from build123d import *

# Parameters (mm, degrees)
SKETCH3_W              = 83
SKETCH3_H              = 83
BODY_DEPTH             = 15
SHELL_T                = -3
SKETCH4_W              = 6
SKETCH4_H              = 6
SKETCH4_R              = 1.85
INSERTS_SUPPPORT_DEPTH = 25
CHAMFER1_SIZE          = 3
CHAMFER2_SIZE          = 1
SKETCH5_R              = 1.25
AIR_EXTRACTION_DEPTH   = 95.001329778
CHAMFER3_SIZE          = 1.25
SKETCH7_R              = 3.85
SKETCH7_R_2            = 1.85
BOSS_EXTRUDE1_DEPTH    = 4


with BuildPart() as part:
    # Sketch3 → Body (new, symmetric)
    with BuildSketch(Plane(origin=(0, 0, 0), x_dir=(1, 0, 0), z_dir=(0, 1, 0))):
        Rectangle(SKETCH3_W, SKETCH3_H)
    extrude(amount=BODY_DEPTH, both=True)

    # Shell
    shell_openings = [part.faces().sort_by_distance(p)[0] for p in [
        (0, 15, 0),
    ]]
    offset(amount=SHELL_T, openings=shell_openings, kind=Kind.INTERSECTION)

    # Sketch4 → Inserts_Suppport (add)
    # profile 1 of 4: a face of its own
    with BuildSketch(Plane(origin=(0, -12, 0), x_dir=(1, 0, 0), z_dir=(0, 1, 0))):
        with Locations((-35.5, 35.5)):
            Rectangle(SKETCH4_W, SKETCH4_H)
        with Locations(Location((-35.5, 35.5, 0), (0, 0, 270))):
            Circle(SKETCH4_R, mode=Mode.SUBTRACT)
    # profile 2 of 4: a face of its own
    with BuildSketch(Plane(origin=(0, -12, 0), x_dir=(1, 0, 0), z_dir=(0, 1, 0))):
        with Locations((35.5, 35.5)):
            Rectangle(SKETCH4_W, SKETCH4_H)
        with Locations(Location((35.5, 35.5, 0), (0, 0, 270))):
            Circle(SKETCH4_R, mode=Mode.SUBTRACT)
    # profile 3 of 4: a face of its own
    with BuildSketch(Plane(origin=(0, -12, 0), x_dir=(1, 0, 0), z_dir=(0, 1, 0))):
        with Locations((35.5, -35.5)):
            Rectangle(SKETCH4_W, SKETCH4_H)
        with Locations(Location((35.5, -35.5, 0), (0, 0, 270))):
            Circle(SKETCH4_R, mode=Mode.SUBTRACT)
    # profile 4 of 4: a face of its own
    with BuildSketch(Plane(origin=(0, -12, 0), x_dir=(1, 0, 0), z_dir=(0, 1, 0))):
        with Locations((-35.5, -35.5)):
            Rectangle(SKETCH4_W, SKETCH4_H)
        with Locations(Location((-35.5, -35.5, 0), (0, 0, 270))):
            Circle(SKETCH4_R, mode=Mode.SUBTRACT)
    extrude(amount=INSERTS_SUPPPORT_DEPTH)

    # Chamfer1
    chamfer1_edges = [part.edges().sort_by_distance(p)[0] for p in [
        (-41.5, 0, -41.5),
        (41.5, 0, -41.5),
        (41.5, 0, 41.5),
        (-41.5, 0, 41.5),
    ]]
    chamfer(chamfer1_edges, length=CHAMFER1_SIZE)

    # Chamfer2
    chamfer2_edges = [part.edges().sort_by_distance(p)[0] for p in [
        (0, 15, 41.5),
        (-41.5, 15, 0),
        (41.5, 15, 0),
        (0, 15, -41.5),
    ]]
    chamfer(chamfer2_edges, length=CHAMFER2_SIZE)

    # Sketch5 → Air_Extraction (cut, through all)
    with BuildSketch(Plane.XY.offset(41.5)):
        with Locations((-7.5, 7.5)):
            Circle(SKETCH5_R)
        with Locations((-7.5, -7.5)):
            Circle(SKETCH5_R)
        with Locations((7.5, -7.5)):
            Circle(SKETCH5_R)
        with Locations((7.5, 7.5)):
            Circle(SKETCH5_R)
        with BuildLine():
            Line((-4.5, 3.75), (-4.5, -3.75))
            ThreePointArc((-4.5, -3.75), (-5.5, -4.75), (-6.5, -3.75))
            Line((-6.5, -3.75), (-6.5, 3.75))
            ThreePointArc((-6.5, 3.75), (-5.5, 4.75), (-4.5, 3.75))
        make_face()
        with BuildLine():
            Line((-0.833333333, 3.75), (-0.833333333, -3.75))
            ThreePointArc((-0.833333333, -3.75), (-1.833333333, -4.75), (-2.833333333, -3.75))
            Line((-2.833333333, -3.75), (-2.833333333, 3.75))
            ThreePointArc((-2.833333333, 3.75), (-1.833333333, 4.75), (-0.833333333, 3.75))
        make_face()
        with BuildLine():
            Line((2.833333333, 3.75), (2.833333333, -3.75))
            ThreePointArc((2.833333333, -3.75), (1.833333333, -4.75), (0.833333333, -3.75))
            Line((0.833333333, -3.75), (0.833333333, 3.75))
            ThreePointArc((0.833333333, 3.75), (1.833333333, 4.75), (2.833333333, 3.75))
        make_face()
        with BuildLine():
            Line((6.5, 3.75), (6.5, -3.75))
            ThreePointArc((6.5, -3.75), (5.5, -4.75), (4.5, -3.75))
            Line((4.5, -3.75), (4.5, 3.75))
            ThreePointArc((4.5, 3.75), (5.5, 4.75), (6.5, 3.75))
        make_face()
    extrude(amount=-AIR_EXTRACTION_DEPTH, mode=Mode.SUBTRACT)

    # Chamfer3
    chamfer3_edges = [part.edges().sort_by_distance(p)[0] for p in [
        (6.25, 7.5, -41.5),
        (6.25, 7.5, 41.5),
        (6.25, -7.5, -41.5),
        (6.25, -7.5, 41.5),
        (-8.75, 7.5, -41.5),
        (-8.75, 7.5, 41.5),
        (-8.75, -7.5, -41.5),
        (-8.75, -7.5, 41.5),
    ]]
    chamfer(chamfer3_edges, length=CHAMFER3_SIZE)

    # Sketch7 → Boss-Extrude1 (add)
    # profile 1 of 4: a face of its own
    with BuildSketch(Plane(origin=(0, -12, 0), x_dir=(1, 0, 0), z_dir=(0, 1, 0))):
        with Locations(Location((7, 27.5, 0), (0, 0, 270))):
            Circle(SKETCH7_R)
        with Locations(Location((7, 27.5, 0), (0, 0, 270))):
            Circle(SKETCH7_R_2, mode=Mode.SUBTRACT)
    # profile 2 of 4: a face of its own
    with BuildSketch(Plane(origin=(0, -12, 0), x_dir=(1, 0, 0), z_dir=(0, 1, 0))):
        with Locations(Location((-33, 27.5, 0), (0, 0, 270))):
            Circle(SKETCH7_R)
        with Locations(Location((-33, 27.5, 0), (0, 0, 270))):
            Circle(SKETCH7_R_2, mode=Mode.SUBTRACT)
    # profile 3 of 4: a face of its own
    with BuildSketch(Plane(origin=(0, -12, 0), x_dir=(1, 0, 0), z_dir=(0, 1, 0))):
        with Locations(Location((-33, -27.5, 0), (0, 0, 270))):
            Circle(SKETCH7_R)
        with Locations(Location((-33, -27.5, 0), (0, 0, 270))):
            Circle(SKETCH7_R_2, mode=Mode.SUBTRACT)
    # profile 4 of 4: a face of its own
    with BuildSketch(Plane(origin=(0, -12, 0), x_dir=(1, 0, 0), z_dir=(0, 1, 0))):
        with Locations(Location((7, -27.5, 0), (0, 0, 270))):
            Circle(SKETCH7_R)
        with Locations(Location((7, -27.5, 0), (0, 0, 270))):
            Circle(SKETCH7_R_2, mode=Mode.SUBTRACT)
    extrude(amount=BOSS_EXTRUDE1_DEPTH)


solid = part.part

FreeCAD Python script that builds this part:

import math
import FreeCAD as App
import Part
import Sketcher
from FreeCAD import Vector


def edges_at(feature, points):
    """Names of the edges that pass closest to the given points."""
    edges = feature.Shape.Edges
    near = lambda p: min(range(len(edges)), key=lambda i: edges[i].distToShape(Part.Vertex(*p))[0])
    return sorted({f"Edge{near(p) + 1}" for p in points})


def faces_at(feature, points):
    """Names of the faces that lie closest to the given points."""
    faces = feature.Shape.Faces
    near = lambda p: min(range(len(faces)), key=lambda i: faces[i].distToShape(Part.Vertex(*p))[0])
    return sorted({f"Face{near(p) + 1}" for p in points})

doc = App.newDocument("Part")
body = doc.addObject("PartDesign::Body", "Body")

# Sketch on XZ plane
sketch1 = body.newObject("Sketcher::SketchObject", "Sketch")
sketch1.AttachmentSupport = (doc.getObject("XZ_Plane"), [""])
sketch1.MapMode = "FlatFace"
sketch1.addGeometry([
    Part.LineSegment(Vector(-41.5, -41.5, 0), Vector(-41.5, 41.5, 0)),
    Part.LineSegment(Vector(-41.5, 41.5, 0), Vector(41.5, 41.5, 0)),
    Part.LineSegment(Vector(41.5, 41.5, 0), Vector(41.5, -41.5, 0)),
    Part.LineSegment(Vector(41.5, -41.5, 0), Vector(-41.5, -41.5, 0)),
], False)
sketch1.addConstraint([
    Sketcher.Constraint("Coincident", 0, 2, 1, 1),
    Sketcher.Constraint("Coincident", 1, 2, 2, 1),
    Sketcher.Constraint("Coincident", 2, 2, 3, 1),
    Sketcher.Constraint("Coincident", 3, 2, 0, 1),
    Sketcher.Constraint("Vertical", 0),
    Sketcher.Constraint("Horizontal", 1),
    Sketcher.Constraint("Vertical", 2),
    Sketcher.Constraint("Horizontal", 3),
    Sketcher.Constraint("Symmetric", 0, 2, 2, 2, -1, 1),
    Sketcher.Constraint("Equal", 3, 0),
    Sketcher.Constraint("DistanceX", 1, 1, 1, 2, 83.0),
])
pad1 = body.newObject("PartDesign::Pad", "Pad")
pad1.Profile = sketch1
pad1.Length = 30
pad1.Midplane = True
doc.recompute()

thickness = body.newObject("PartDesign::Thickness", "Thickness")
thickness.Base = (pad1, faces_at(pad1, [(0, 15, 0)]))
thickness.Value = 3
thickness.Reversed = True
thickness.Join = "Intersection"

# Sketch on XZ plane
sketch2 = body.newObject("Sketcher::SketchObject", "Sketch001")
sketch2.AttachmentSupport = (doc.getObject("XZ_Plane"), [""])
sketch2.MapMode = "FlatFace"
sketch2.AttachmentOffset = App.Placement(Vector(0, 0, 12), App.Rotation())
sketch2.addGeometry([
    Part.LineSegment(Vector(-38.5, -38.5, 0), Vector(-38.5, -32.5, 0)),  # 0
    Part.LineSegment(Vector(-38.5, -32.5, 0), Vector(-32.5, -32.5, 0)),  # 1
    Part.LineSegment(Vector(-32.5, -32.5, 0), Vector(-32.5, -38.5, 0)),  # 2
    Part.LineSegment(Vector(-32.5, -38.5, 0), Vector(-38.5, -38.5, 0)),  # 3
    Part.Circle(Vector(-35.5, -35.5, 0), Vector(0, 0, 1), 1.85),  # 4
    Part.LineSegment(Vector(32.5, -38.5, 0), Vector(32.5, -32.5, 0)),  # 5
    Part.LineSegment(Vector(32.5, -32.5, 0), Vector(38.5, -32.5, 0)),  # 6
    Part.LineSegment(Vector(38.5, -32.5, 0), Vector(38.5, -38.5, 0)),  # 7
    Part.LineSegment(Vector(38.5, -38.5, 0), Vector(32.5, -38.5, 0)),  # 8
    Part.Circle(Vector(35.5, -35.5, 0), Vector(0, 0, 1), 1.85),  # 9
    Part.LineSegment(Vector(32.5, 32.5, 0), Vector(32.5, 38.5, 0)),  # 10
    Part.LineSegment(Vector(32.5, 38.5, 0), Vector(38.5, 38.5, 0)),  # 11
    Part.LineSegment(Vector(38.5, 38.5, 0), Vector(38.5, 32.5, 0)),  # 12
    Part.LineSegment(Vector(38.5, 32.5, 0), Vector(32.5, 32.5, 0)),  # 13
    Part.Circle(Vector(35.5, 35.5, 0), Vector(0, 0, 1), 1.85),  # 14
    Part.LineSegment(Vector(-38.5, 32.5, 0), Vector(-38.5, 38.5, 0)),  # 15
    Part.LineSegment(Vector(-38.5, 38.5, 0), Vector(-32.5, 38.5, 0)),  # 16
    Part.LineSegment(Vector(-32.5, 38.5, 0), Vector(-32.5, 32.5, 0)),  # 17
    Part.LineSegment(Vector(-32.5, 32.5, 0), Vector(-38.5, 32.5, 0)),  # 18
    Part.Circle(Vector(-35.5, 35.5, 0), Vector(0, 0, 1), 1.85),  # 19
], False)
sketch2.addConstraint([
    Sketcher.Constraint("Coincident", 0, 2, 1, 1),
    Sketcher.Constraint("Coincident", 1, 2, 2, 1),
    Sketcher.Constraint("Coincident", 2, 2, 3, 1),
    Sketcher.Constraint("Coincident", 3, 2, 0, 1),
    Sketcher.Constraint("Coincident", 5, 2, 6, 1),
    Sketcher.Constraint("Coincident", 6, 2, 7, 1),
    Sketcher.Constraint("Coincident", 7, 2, 8, 1),
    Sketcher.Constraint("Coincident", 8, 2, 5, 1),
    Sketcher.Constraint("Coincident", 10, 2, 11, 1),
    Sketcher.Constraint("Coincident", 11, 2, 12, 1),
    Sketcher.Constraint("Coincident", 12, 2, 13, 1),
    Sketcher.Constraint("Coincident", 13, 2, 10, 1),
    Sketcher.Constraint("Coincident", 15, 2, 16, 1),
    Sketcher.Constraint("Coincident", 16, 2, 17, 1),
    Sketcher.Constraint("Coincident", 17, 2, 18, 1),
    Sketcher.Constraint("Coincident", 18, 2, 15, 1),
    Sketcher.Constraint("Vertical", 0),
    Sketcher.Constraint("Horizontal", 1),
    Sketcher.Constraint("Vertical", 2),
    Sketcher.Constraint("Horizontal", 3),
    Sketcher.Constraint("Vertical", 5),
    Sketcher.Constraint("Horizontal", 6),
    Sketcher.Constraint("Vertical", 7),
    Sketcher.Constraint("Horizontal", 8),
    Sketcher.Constraint("Vertical", 10),
    Sketcher.Constraint("Horizontal", 11),
    Sketcher.Constraint("Vertical", 12),
    Sketcher.Constraint("Horizontal", 13),
    Sketcher.Constraint("Vertical", 15),
    Sketcher.Constraint("Horizontal", 16),
    Sketcher.Constraint("Vertical", 17),
    Sketcher.Constraint("Horizontal", 18),
    Sketcher.Constraint("Equal", 4, 9),
    Sketcher.Constraint("Equal", 9, 14),
    Sketcher.Constraint("Equal", 14, 19),
    Sketcher.Constraint("Symmetric", 4, 3, 14, 3, -1, 1),
    Sketcher.Constraint("Symmetric", 9, 3, 19, 3, -1, 1),
    Sketcher.Constraint("Symmetric", 2, 2, 10, 2, -1, 1),
    Sketcher.Constraint("Symmetric", 0, 2, 12, 2, -1, 1),
    Sketcher.Constraint("Symmetric", 7, 2, 15, 2, -1, 1),
    Sketcher.Constraint("Symmetric", 5, 2, 17, 2, -1, 1),
    Sketcher.Constraint("Symmetric", 4, 3, 9, 3, -2),
    Sketcher.Constraint("Symmetric", 1, 2, 5, 2, -2),
    Sketcher.Constraint("Symmetric", 3, 2, 7, 2, -2),
    Sketcher.Constraint("Equal", 18, 0),
    Sketcher.Constraint("Diameter", 4, 3.7),
    Sketcher.Constraint("DistanceX", 1, 1, 1, 2, 6.0),
    Sketcher.Constraint("DistanceX", 4, 3, 9, 3, 71.0),
    Sketcher.Constraint("DistanceY", 9, 3, 14, 3, 71.0),
    Sketcher.Constraint("DistanceX", 0, 2, 4, 3, 3.0),
    Sketcher.Constraint("DistanceY", 4, 3, 0, 2, 3.0),
])
pad2 = body.newObject("PartDesign::Pad", "Pad001")
pad2.Profile = sketch2
pad2.Length = 25
pad2.Reversed = True
doc.recompute()

chamfer = body.newObject("PartDesign::Chamfer", "Chamfer")
chamfer.Base = (pad2, edges_at(pad2, [
    (-41.5, 0, -41.5),
    (41.5, 0, -41.5),
    (41.5, 0, 41.5),
    (-41.5, 0, 41.5),
]))
chamfer.Size = 3
doc.recompute()

chamfer2 = body.newObject("PartDesign::Chamfer", "Chamfer001")
chamfer2.Base = (chamfer, edges_at(chamfer, [
    (0, 15, 41.5),
    (-41.5, 15, 0),
    (41.5, 15, 0),
    (0, 15, -41.5),
]))
chamfer2.Size = 1

# Sketch on XY plane
sketch3 = body.newObject("Sketcher::SketchObject", "Sketch002")
sketch3.AttachmentSupport = (doc.getObject("XY_Plane"), [""])
sketch3.MapMode = "FlatFace"
sketch3.AttachmentOffset = App.Placement(Vector(0, 0, 41.5), App.Rotation())
sketch3.addGeometry([
    Part.Circle(Vector(-7.5, 7.5, 0), Vector(0, 0, 1), 1.25),  # 0
    Part.Circle(Vector(-7.5, -7.5, 0), Vector(0, 0, 1), 1.25),  # 1
    Part.Circle(Vector(7.5, -7.5, 0), Vector(0, 0, 1), 1.25),  # 2
    Part.Circle(Vector(7.5, 7.5, 0), Vector(0, 0, 1), 1.25),  # 3
    Part.LineSegment(Vector(-4.5, -3.75, 0), Vector(-4.5, 3.75, 0)),  # 4
    Part.ArcOfCircle(Part.Circle(Vector(-5.5, 3.75, 0), Vector(0, 0, 1), 1), math.radians(0), math.radians(180)),  # 5
    Part.LineSegment(Vector(-6.5, 3.75, 0), Vector(-6.5, -3.75, 0)),  # 6
    Part.ArcOfCircle(Part.Circle(Vector(-5.5, -3.75, 0), Vector(0, 0, 1), 1), math.radians(180), math.radians(360)),  # 7
    Part.LineSegment(Vector(-0.833333, -3.75, 0), Vector(-0.833333, 3.75, 0)),  # 8
    Part.ArcOfCircle(Part.Circle(Vector(-1.833333, 3.75, 0), Vector(0, 0, 1), 1), math.radians(0), math.radians(180)),  # 9
    Part.LineSegment(Vector(-2.833333, 3.75, 0), Vector(-2.833333, -3.75, 0)),  # 10
    Part.ArcOfCircle(Part.Circle(Vector(-1.833333, -3.75, 0), Vector(0, 0, 1), 1), math.radians(180), math.radians(360)),  # 11
    Part.LineSegment(Vector(2.833333, -3.75, 0), Vector(2.833333, 3.75, 0)),  # 12
    Part.ArcOfCircle(Part.Circle(Vector(1.833333, 3.75, 0), Vector(0, 0, 1), 1), math.radians(0), math.radians(180)),  # 13
    Part.LineSegment(Vector(0.833333, 3.75, 0), Vector(0.833333, -3.75, 0)),  # 14
    Part.ArcOfCircle(Part.Circle(Vector(1.833333, -3.75, 0), Vector(0, 0, 1), 1), math.radians(180), math.radians(360)),  # 15
    Part.LineSegment(Vector(6.5, -3.75, 0), Vector(6.5, 3.75, 0)),  # 16
    Part.ArcOfCircle(Part.Circle(Vector(5.5, 3.75, 0), Vector(0, 0, 1), 1), math.radians(0), math.radians(180)),  # 17
    Part.LineSegment(Vector(4.5, 3.75, 0), Vector(4.5, -3.75, 0)),  # 18
    Part.ArcOfCircle(Part.Circle(Vector(5.5, -3.75, 0), Vector(0, 0, 1), 1), math.radians(180), math.radians(360)),  # 19
], False)
sketch3.addConstraint([
    Sketcher.Constraint("Tangent", 4, 2, 5, 1),
    Sketcher.Constraint("Tangent", 5, 2, 6, 1),
    Sketcher.Constraint("Tangent", 6, 2, 7, 1),
    Sketcher.Constraint("Tangent", 7, 2, 4, 1),
    Sketcher.Constraint("Tangent", 8, 2, 9, 1),
    Sketcher.Constraint("Tangent", 9, 2, 10, 1),
    Sketcher.Constraint("Tangent", 10, 2, 11, 1),
    Sketcher.Constraint("Tangent", 11, 2, 8, 1),
    Sketcher.Constraint("Tangent", 12, 2, 13, 1),
    Sketcher.Constraint("Tangent", 13, 2, 14, 1),
    Sketcher.Constraint("Tangent", 14, 2, 15, 1),
    Sketcher.Constraint("Tangent", 15, 2, 12, 1),
    Sketcher.Constraint("Tangent", 16, 2, 17, 1),
    Sketcher.Constraint("Tangent", 17, 2, 18, 1),
    Sketcher.Constraint("Tangent", 18, 2, 19, 1),
    Sketcher.Constraint("Tangent", 19, 2, 16, 1),
    Sketcher.Constraint("Vertical", 4),
    Sketcher.Constraint("Vertical", 6),
    Sketcher.Constraint("Vertical", 8),
    Sketcher.Constraint("Vertical", 10),
    Sketcher.Constraint("Vertical", 12),
    Sketcher.Constraint("Vertical", 14),
    Sketcher.Constraint("Vertical", 16),
    Sketcher.Constraint("Vertical", 18),
    Sketcher.Constraint("Equal", 0, 1),
    Sketcher.Constraint("Equal", 1, 2),
    Sketcher.Constraint("Equal", 2, 3),
    Sketcher.Constraint("Equal", 7, 9),
    Sketcher.Constraint("Equal", 11, 13),
    Sketcher.Constraint("Equal", 15, 17),
    Sketcher.Constraint("Symmetric", 0, 3, 2, 3, -1, 1),
    Sketcher.Constraint("Symmetric", 1, 3, 3, 3, -1, 1),
    Sketcher.Constraint("Symmetric", 11, 3, 13, 3, -1, 1),
    Sketcher.Constraint("Symmetric", 7, 3, 17, 3, -1, 1),
    Sketcher.Constraint("Symmetric", 1, 3, 2, 3, -2),
    Sketcher.Constraint("Horizontal", 5, 3, 9, 3),
    Sketcher.Constraint("Horizontal", 7, 3, 11, 3),
    Sketcher.Constraint("Horizontal", 9, 3, 13, 3),
    Sketcher.Constraint("Horizontal", 11, 3, 15, 3),
    Sketcher.Constraint("Horizontal", 15, 3, 19, 3),
    Sketcher.Constraint("Radius", 5, 1.0),
    Sketcher.Constraint("Diameter", 0, 2.5),
    Sketcher.Constraint("DistanceY", 4, 1, 4, 2, 7.5),
    Sketcher.Constraint("DistanceY", 1, 3, 0, 3, 15.0),
    Sketcher.Constraint("DistanceX", 1, 3, 2, 3, 15.0),
    Sketcher.Constraint("DistanceX", 0, 3, 5, 3, 2.0),
    Sketcher.Constraint("DistanceX", 9, 3, -1, 1, 1.833333),
])
pocket1 = body.newObject("PartDesign::Pocket", "Pocket")
pocket1.Profile = sketch3
pocket1.Type = "ThroughAll"
doc.recompute()

chamfer3 = body.newObject("PartDesign::Chamfer", "Chamfer002")
chamfer3.Base = (pocket1, edges_at(pocket1, [
    (6.25, 7.5, -41.5),
    (6.25, 7.5, 41.5),
    (6.25, -7.5, -41.5),
    (6.25, -7.5, 41.5),
    (-8.75, 7.5, -41.5),
    (-8.75, 7.5, 41.5),
    (-8.75, -7.5, -41.5),
    (-8.75, -7.5, 41.5),
]))
chamfer3.Size = 1.25

# Sketch on XZ plane
sketch4 = body.newObject("Sketcher::SketchObject", "Sketch003")
sketch4.AttachmentSupport = (doc.getObject("XZ_Plane"), [""])
sketch4.MapMode = "FlatFace"
sketch4.AttachmentOffset = App.Placement(Vector(0, 0, 12), App.Rotation())
sketch4.addGeometry([
    Part.Circle(Vector(7, -27.5, 0), Vector(0, 0, 1), 3.85),  # 0
    Part.Circle(Vector(7, -27.5, 0), Vector(0, 0, 1), 1.85),  # 1
    Part.Circle(Vector(-33, -27.5, 0), Vector(0, 0, 1), 3.85),  # 2
    Part.Circle(Vector(-33, -27.5, 0), Vector(0, 0, 1), 1.85),  # 3
    Part.Circle(Vector(-33, 27.5, 0), Vector(0, 0, 1), 3.85),  # 4
    Part.Circle(Vector(-33, 27.5, 0), Vector(0, 0, 1), 1.85),  # 5
    Part.Circle(Vector(7, 27.5, 0), Vector(0, 0, 1), 3.85),  # 6
    Part.Circle(Vector(7, 27.5, 0), Vector(0, 0, 1), 1.85),  # 7
], False)
sketch4.addConstraint([
    Sketcher.Constraint("Coincident", 1, 3, 0, 3),
    Sketcher.Constraint("Coincident", 3, 3, 2, 3),
    Sketcher.Constraint("Coincident", 5, 3, 4, 3),
    Sketcher.Constraint("Coincident", 7, 3, 6, 3),
    Sketcher.Constraint("Equal", 0, 2),
    Sketcher.Constraint("Equal", 1, 3),
    Sketcher.Constraint("Equal", 2, 4),
    Sketcher.Constraint("Equal", 3, 5),
    Sketcher.Constraint("Equal", 4, 6),
    Sketcher.Constraint("Equal", 5, 7),
    Sketcher.Constraint("Symmetric", 2, 3, 4, 3, -1),
    Sketcher.Constraint("Symmetric", 0, 3, 6, 3, -1),
    Sketcher.Constraint("Horizontal", 1, 3, 2, 3),
    Sketcher.Constraint("Diameter", 0, 7.7),
    Sketcher.Constraint("Diameter", 1, 3.7),
    Sketcher.Constraint("DistanceX", -1, 1, 0, 3, 7.0),
    Sketcher.Constraint("DistanceX", 2, 3, -1, 1, 33.0),
    Sketcher.Constraint("DistanceY", 2, 3, 4, 3, 55.0),
])
pad3 = body.newObject("PartDesign::Pad", "Pad002")
pad3.Profile = sketch4
pad3.Length = 4
pad3.Reversed = True

doc.recompute()
